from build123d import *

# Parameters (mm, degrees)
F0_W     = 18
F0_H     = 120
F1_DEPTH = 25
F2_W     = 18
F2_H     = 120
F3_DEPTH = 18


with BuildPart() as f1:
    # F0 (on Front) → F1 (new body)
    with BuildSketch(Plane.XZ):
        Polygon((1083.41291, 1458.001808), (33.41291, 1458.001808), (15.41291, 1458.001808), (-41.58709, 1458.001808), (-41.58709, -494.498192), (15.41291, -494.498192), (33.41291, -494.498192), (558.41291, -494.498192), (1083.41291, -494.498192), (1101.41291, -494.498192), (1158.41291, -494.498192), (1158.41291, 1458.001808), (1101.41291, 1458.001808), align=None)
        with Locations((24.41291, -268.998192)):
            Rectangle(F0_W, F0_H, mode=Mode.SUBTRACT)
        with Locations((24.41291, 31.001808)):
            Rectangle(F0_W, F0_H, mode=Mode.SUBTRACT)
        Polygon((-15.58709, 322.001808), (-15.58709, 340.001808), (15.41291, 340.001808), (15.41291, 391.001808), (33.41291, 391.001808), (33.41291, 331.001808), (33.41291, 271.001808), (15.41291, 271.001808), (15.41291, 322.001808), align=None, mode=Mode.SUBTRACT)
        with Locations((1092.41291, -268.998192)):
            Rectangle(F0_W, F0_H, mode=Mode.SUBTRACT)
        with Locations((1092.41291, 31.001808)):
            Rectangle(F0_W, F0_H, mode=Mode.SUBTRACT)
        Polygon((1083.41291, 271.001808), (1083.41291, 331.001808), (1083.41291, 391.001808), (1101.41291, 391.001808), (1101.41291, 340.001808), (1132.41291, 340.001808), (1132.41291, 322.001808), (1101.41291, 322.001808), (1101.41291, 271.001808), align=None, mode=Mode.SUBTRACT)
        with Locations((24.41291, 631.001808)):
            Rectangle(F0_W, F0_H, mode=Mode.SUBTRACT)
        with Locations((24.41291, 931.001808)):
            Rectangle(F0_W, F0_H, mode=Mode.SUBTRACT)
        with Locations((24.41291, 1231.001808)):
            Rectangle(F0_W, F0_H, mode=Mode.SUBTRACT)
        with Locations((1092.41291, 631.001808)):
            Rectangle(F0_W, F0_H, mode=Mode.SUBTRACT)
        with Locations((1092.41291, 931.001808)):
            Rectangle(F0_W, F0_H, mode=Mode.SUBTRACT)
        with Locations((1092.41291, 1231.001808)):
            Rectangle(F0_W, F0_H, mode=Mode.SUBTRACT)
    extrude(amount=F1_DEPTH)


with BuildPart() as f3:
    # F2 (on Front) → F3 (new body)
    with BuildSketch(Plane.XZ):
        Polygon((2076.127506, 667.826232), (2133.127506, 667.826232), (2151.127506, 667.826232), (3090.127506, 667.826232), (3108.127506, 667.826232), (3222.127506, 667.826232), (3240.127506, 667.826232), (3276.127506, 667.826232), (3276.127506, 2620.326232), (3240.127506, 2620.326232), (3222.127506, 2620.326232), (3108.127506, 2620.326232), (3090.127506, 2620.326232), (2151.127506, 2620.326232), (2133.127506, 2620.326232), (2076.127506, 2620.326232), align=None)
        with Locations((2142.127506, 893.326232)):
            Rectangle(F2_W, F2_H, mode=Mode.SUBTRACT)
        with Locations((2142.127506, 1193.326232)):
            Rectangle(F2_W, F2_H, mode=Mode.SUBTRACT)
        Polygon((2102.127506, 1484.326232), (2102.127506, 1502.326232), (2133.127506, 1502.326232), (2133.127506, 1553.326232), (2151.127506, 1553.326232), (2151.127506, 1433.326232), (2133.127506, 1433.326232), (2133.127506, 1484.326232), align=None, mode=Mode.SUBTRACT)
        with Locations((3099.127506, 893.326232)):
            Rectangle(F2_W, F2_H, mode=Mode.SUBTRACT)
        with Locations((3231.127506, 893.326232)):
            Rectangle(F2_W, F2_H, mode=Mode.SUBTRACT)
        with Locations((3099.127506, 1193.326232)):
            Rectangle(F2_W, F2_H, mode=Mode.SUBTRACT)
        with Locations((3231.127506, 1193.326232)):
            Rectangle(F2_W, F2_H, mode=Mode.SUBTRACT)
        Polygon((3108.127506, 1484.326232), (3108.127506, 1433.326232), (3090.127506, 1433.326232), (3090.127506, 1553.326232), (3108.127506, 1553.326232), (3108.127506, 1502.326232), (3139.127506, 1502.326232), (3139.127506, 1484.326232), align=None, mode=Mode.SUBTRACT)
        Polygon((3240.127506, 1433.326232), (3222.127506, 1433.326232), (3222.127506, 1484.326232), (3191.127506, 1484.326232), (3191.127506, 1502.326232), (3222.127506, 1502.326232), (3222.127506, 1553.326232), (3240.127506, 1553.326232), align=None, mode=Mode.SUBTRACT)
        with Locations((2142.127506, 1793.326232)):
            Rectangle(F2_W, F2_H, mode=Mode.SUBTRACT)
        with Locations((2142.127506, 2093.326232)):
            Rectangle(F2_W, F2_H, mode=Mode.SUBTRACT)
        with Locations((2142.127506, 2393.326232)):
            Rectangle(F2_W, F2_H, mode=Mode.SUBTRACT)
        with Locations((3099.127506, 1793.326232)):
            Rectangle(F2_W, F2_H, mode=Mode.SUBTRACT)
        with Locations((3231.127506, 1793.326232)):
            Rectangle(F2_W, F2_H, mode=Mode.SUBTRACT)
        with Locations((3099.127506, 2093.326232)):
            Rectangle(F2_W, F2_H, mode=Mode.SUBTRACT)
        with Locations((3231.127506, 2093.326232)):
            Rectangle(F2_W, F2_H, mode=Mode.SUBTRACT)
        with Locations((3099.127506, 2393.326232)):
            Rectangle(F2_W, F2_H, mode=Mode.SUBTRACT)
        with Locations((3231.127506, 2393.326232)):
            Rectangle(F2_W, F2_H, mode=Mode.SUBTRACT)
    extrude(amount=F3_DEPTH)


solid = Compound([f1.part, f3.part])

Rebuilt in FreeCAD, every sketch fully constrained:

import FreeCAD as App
import Part
import Sketcher
from FreeCAD import Vector
Q = App.Units.Quantity


def add_polygon(sketch, points):
    """Adds a closed chain of lines whose ends are joined by coincident constraints."""
    first, n = sketch.GeometryCount, len(points)
    for a, b in zip(points, points[1:] + points[:1]):
        sketch.addGeometry(Part.LineSegment(App.Vector(*a, 0), App.Vector(*b, 0)), False)
    for i in range(n):
        sketch.addConstraint(Sketcher.Constraint("Coincident", first + i, 2, first + (i + 1) % n, 1))

doc = App.newDocument("Part")
params = doc.addObject("Spreadsheet::Sheet", "Params")
for row, (alias, value) in enumerate([
    ("sketch1_width", "1200 mm"),
    ("sketch1_width2", "18 mm"),
    ("sketch1_width3", "31 mm"),
    ("sketch1_height", "120 mm"),
    ("sketch1_height2", "1952.5 mm"),
    ("pad1_length", "25 mm"),
    ("sketch2_width", "1200 mm"),
    ("sketch2_width2", "18 mm"),
    ("sketch2_width3", "31 mm"),
    ("sketch2_height", "120 mm"),
    ("sketch2_height2", "1952.5 mm"),
    ("pad2_length", "18 mm"),
], start=1):
    params.set(f"A{row}", alias)
    params.set(f"B{row}", "=" + value)
    params.setAlias(f"B{row}", alias)

body = doc.addObject("PartDesign::Body", "Body")

# Sketch on XZ plane
sketch1 = body.newObject("Sketcher::SketchObject", "Sketch")
sketch1.AttachmentSupport = (doc.getObject("XZ_Plane"), [""])
sketch1.MapMode = "FlatFace"
add_polygon(sketch1, [(-42, 1458), (-42, -494), (1158, -494), (1158, 1458)])  # lines 0-3
add_polygon(sketch1, [(33, -329), (15, -329), (15, -209), (33, -209)])  # lines 4-7
add_polygon(sketch1, [(33, -29), (15, -29), (15, 91), (33, 91)])  # lines 8-11
add_polygon(sketch1, [(15, 322), (-16, 322), (-16, 340), (15, 340), (15, 391), (33, 391), (33, 271), (15, 271)])  # lines 12-19
add_polygon(sketch1, [(1101, -329), (1083, -329), (1083, -209), (1101, -209)])  # lines 20-23
add_polygon(sketch1, [(1101, -29), (1083, -29), (1083, 91), (1101, 91)])  # lines 24-27
add_polygon(sketch1, [(1101, 271), (1083, 271), (1083, 391), (1101, 391), (1101, 340), (1132, 340), (1132, 322), (1101, 322)])  # lines 28-35
add_polygon(sketch1, [(33, 571), (15, 571), (15, 691), (33, 691)])  # lines 36-39
add_polygon(sketch1, [(33, 871), (15, 871), (15, 991), (33, 991)])  # lines 40-43
add_polygon(sketch1, [(33, 1171), (15, 1171), (15, 1291), (33, 1291)])  # lines 44-47
add_polygon(sketch1, [(1101, 571), (1083, 571), (1083, 691), (1101, 691)])  # lines 48-51
add_polygon(sketch1, [(1101, 871), (1083, 871), (1083, 991), (1101, 991)])  # lines 52-55
add_polygon(sketch1, [(1101, 1171), (1083, 1171), (1083, 1291), (1101, 1291)])  # lines 56-59
sketch1.addConstraint([
    Sketcher.Constraint("Vertical", 0),
    Sketcher.Constraint("Horizontal", 1),
    Sketcher.Constraint("Vertical", 2),
    Sketcher.Constraint("Horizontal", 3),
    Sketcher.Constraint("Horizontal", 4),
    Sketcher.Constraint("Vertical", 5),
    Sketcher.Constraint("Horizontal", 6),
    Sketcher.Constraint("Vertical", 7),
    Sketcher.Constraint("Horizontal", 8),
    Sketcher.Constraint("Vertical", 9),
    Sketcher.Constraint("Horizontal", 10),
    Sketcher.Constraint("Vertical", 11),
    Sketcher.Constraint("Horizontal", 12),
    Sketcher.Constraint("Vertical", 13),
    Sketcher.Constraint("Horizontal", 14),
    Sketcher.Constraint("Vertical", 15),
    Sketcher.Constraint("Horizontal", 16),
    Sketcher.Constraint("Vertical", 17),
    Sketcher.Constraint("Horizontal", 18),
    Sketcher.Constraint("Vertical", 19),
    Sketcher.Constraint("Horizontal", 20),
    Sketcher.Constraint("Vertical", 21),
    Sketcher.Constraint("Horizontal", 22),
    Sketcher.Constraint("Vertical", 23),
    Sketcher.Constraint("Horizontal", 24),
    Sketcher.Constraint("Vertical", 25),
    Sketcher.Constraint("Horizontal", 26),
    Sketcher.Constraint("Vertical", 27),
    Sketcher.Constraint("Horizontal", 28),
    Sketcher.Constraint("Vertical", 29),
    Sketcher.Constraint("Horizontal", 30),
    Sketcher.Constraint("Vertical", 31),
    Sketcher.Constraint("Horizontal", 32),
    Sketcher.Constraint("Vertical", 33),
    Sketcher.Constraint("Horizontal", 34),
    Sketcher.Constraint("Vertical", 35),
    Sketcher.Constraint("Horizontal", 36),
    Sketcher.Constraint("Vertical", 37),
    Sketcher.Constraint("Horizontal", 38),
    Sketcher.Constraint("Vertical", 39),
    Sketcher.Constraint("Horizontal", 40),
    Sketcher.Constraint("Vertical", 41),
    Sketcher.Constraint("Horizontal", 42),
    Sketcher.Constraint("Vertical", 43),
    Sketcher.Constraint("Horizontal", 44),
    Sketcher.Constraint("Vertical", 45),
    Sketcher.Constraint("Horizontal", 46),
    Sketcher.Constraint("Vertical", 47),
    Sketcher.Constraint("Horizontal", 48),
    Sketcher.Constraint("Vertical", 49),
    Sketcher.Constraint("Horizontal", 50),
    Sketcher.Constraint("Vertical", 51),
    Sketcher.Constraint("Horizontal", 52),
    Sketcher.Constraint("Vertical", 53),
    Sketcher.Constraint("Horizontal", 54),
    Sketcher.Constraint("Vertical", 55),
    Sketcher.Constraint("Horizontal", 56),
    Sketcher.Constraint("Vertical", 57),
    Sketcher.Constraint("Horizontal", 58),
    Sketcher.Constraint("Vertical", 59),
    Sketcher.Constraint("Horizontal", 7, 2, 20, 2),
    Sketcher.Constraint("Horizontal", 6, 2, 21, 2),
    Sketcher.Constraint("Horizontal", 11, 2, 24, 2),
    Sketcher.Constraint("Horizontal", 10, 2, 25, 2),
    Sketcher.Constraint("Horizontal", 18, 2, 28, 2),
    Sketcher.Constraint("Horizontal", 16, 2, 29, 2),
    Sketcher.Constraint("Horizontal", 14, 2, 31, 2),
    Sketcher.Constraint("Horizontal", 19, 2, 33, 2),
    Sketcher.Constraint("Horizontal", 39, 2, 48, 2),
    Sketcher.Constraint("Horizontal", 38, 2, 49, 2),
    Sketcher.Constraint("Horizontal", 43, 2, 52, 2),
    Sketcher.Constraint("Horizontal", 42, 2, 53, 2),
    Sketcher.Constraint("Horizontal", 47, 2, 56, 2),
    Sketcher.Constraint("Horizontal", 46, 2, 57, 2),
    Sketcher.Constraint("Vertical", 5, 2, 8, 2),
    Sketcher.Constraint("Vertical", 7, 2, 10, 2),
    Sketcher.Constraint("Vertical", 9, 2, 14, 2),
    Sketcher.Constraint("Vertical", 11, 2, 16, 2),
    Sketcher.Constraint("Vertical", 15, 2, 18, 2),
    Sketcher.Constraint("Vertical", 21, 2, 24, 2),
    Sketcher.Constraint("Vertical", 23, 2, 26, 2),
    Sketcher.Constraint("Vertical", 25, 2, 28, 2),
    Sketcher.Constraint("Vertical", 27, 2, 30, 2),
    Sketcher.Constraint("Vertical", 31, 2, 34, 2),
    Sketcher.Constraint("Vertical", 19, 2, 36, 2),
    Sketcher.Constraint("Vertical", 17, 2, 38, 2),
    Sketcher.Constraint("Vertical", 37, 2, 40, 2),
    Sketcher.Constraint("Vertical", 39, 2, 42, 2),
    Sketcher.Constraint("Vertical", 41, 2, 44, 2),
    Sketcher.Constraint("Vertical", 43, 2, 46, 2),
    Sketcher.Constraint("Vertical", 29, 2, 48, 2),
    Sketcher.Constraint("Vertical", 35, 2, 50, 2),
    Sketcher.Constraint("Vertical", 49, 2, 52, 2),
    Sketcher.Constraint("Vertical", 51, 2, 54, 2),
    Sketcher.Constraint("Vertical", 53, 2, 56, 2),
    Sketcher.Constraint("Vertical", 55, 2, 58, 2),
    Sketcher.Constraint("Equal", 18, 20),
    Sketcher.Constraint("Equal", 14, 32),
    Sketcher.Constraint("Equal", 7, 9),
    Sketcher.Constraint("Equal", 58, 13),
    Sketcher.Constraint("Equal", 11, 17),
    Sketcher.Constraint("Equal", 15, 19),
    Sketcher.Constraint("Equal", 29, 37),
    Sketcher.Constraint("Equal", 39, 41),
    Sketcher.Constraint("Equal", 43, 45),
    Sketcher.Constraint("DistanceX", 1, 1, 1, 2, Q("1200 mm")),
    Sketcher.Constraint("DistanceX", 4, 2, 4, 1, Q("18 mm")),
    Sketcher.Constraint("DistanceX", 12, 2, 12, 1, Q("31 mm")),
    Sketcher.Constraint("DistanceY", 5, 1, 5, 2, Q("120 mm")),
    Sketcher.Constraint("DistanceY", 0, 2, 0, 1, Q("1952.5 mm")),
    Sketcher.Constraint("DistanceX", 0, 2, 4, 2, Q("57 mm")),
    Sketcher.Constraint("DistanceY", 4, 2, 3, 2, Q("1787 mm")),
    Sketcher.Constraint("DistanceY", 5, 2, 8, 2, Q("180 mm")),
    Sketcher.Constraint("DistanceY", 9, 2, 12, 2, Q("231 mm")),
    Sketcher.Constraint("DistanceX", 20, 2, 1, 2, Q("75 mm")),
    Sketcher.Constraint("DistanceY", 15, 2, 36, 2, Q("180 mm")),
    Sketcher.Constraint("DistanceY", 37, 2, 40, 2, Q("180 mm")),
    Sketcher.Constraint("DistanceY", 41, 2, 44, 2, Q("180 mm")),
    Sketcher.Constraint("DistanceX", 0, 2, -1, 1, Q("41.58709 mm")),
    Sketcher.Constraint("DistanceY", 0, 2, -1, 1, Q("494.498192 mm")),
])
sketch1.setExpression("Constraints[165]", "Params.sketch1_width")
sketch1.setExpression("Constraints[166]", "Params.sketch1_width2")
sketch1.setExpression("Constraints[167]", "Params.sketch1_width3")
sketch1.setExpression("Constraints[168]", "Params.sketch1_height")
sketch1.setExpression("Constraints[169]", "Params.sketch1_height2")
pad1 = body.newObject("PartDesign::Pad", "Pad")
pad1.Profile = sketch1
pad1.setExpression("Length", "Params.pad1_length")
body2 = doc.addObject("PartDesign::Body", "Body001")

# Sketch on XZ plane
sketch2 = body2.newObject("Sketcher::SketchObject", "Sketch001")
sketch2.AttachmentSupport = (doc.getObject("XZ_Plane001"), [""])
sketch2.MapMode = "FlatFace"
add_polygon(sketch2, [(2076, 668), (3276, 668), (3276, 2620), (2076, 2620)])  # lines 0-3
add_polygon(sketch2, [(2151, 833), (2133, 833), (2133, 953), (2151, 953)])  # lines 4-7
add_polygon(sketch2, [(2151, 1133), (2133, 1133), (2133, 1253), (2151, 1253)])  # lines 8-11
add_polygon(sketch2, [(2133, 1484), (2102, 1484), (2102, 1502), (2133, 1502), (2133, 1553), (2151, 1553), (2151, 1433), (2133, 1433)])  # lines 12-19
add_polygon(sketch2, [(3108, 833), (3090, 833), (3090, 953), (3108, 953)])  # lines 20-23
add_polygon(sketch2, [(3240, 833), (3222, 833), (3222, 953), (3240, 953)])  # lines 24-27
add_polygon(sketch2, [(3108, 1133), (3090, 1133), (3090, 1253), (3108, 1253)])  # lines 28-31
add_polygon(sketch2, [(3240, 1133), (3222, 1133), (3222, 1253), (3240, 1253)])  # lines 32-35
add_polygon(sketch2, [(3139, 1484), (3108, 1484), (3108, 1433), (3090, 1433), (3090, 1553), (3108, 1553), (3108, 1502), (3139, 1502)])  # lines 36-43
add_polygon(sketch2, [(3240, 1553), (3240, 1433), (3222, 1433), (3222, 1484), (3191, 1484), (3191, 1502), (3222, 1502), (3222, 1553)])  # lines 44-51
add_polygon(sketch2, [(2151, 1733), (2133, 1733), (2133, 1853), (2151, 1853)])  # lines 52-55
add_polygon(sketch2, [(2151, 2033), (2133, 2033), (2133, 2153), (2151, 2153)])  # lines 56-59
add_polygon(sketch2, [(2151, 2333), (2133, 2333), (2133, 2453), (2151, 2453)])  # lines 60-63
add_polygon(sketch2, [(3108, 1733), (3090, 1733), (3090, 1853), (3108, 1853)])  # lines 64-67
add_polygon(sketch2, [(3240, 1733), (3222, 1733), (3222, 1853), (3240, 1853)])  # lines 68-71
add_polygon(sketch2, [(3108, 2033), (3090, 2033), (3090, 2153), (3108, 2153)])  # lines 72-75
add_polygon(sketch2, [(3240, 2033), (3222, 2033), (3222, 2153), (3240, 2153)])  # lines 76-79
add_polygon(sketch2, [(3108, 2333), (3090, 2333), (3090, 2453), (3108, 2453)])  # lines 80-83
add_polygon(sketch2, [(3240, 2333), (3222, 2333), (3222, 2453), (3240, 2453)])  # lines 84-87
sketch2.addConstraint([
    Sketcher.Constraint("Horizontal", 0),
    Sketcher.Constraint("Vertical", 1),
    Sketcher.Constraint("Horizontal", 2),
    Sketcher.Constraint("Vertical", 3),
    Sketcher.Constraint("Horizontal", 4),
    Sketcher.Constraint("Vertical", 5),
    Sketcher.Constraint("Horizontal", 6),
    Sketcher.Constraint("Vertical", 7),
    Sketcher.Constraint("Horizontal", 8),
    Sketcher.Constraint("Vertical", 9),
    Sketcher.Constraint("Horizontal", 10),
    Sketcher.Constraint("Vertical", 11),
    Sketcher.Constraint("Horizontal", 12),
    Sketcher.Constraint("Vertical", 13),
    Sketcher.Constraint("Horizontal", 14),
    Sketcher.Constraint("Vertical", 15),
    Sketcher.Constraint("Horizontal", 16),
    Sketcher.Constraint("Vertical", 17),
    Sketcher.Constraint("Horizontal", 18),
    Sketcher.Constraint("Vertical", 19),
    Sketcher.Constraint("Horizontal", 20),
    Sketcher.Constraint("Vertical", 21),
    Sketcher.Constraint("Horizontal", 22),
    Sketcher.Constraint("Vertical", 23),
    Sketcher.Constraint("Horizontal", 24),
    Sketcher.Constraint("Vertical", 25),
    Sketcher.Constraint("Horizontal", 26),
    Sketcher.Constraint("Vertical", 27),
    Sketcher.Constraint("Horizontal", 28),
    Sketcher.Constraint("Vertical", 29),
    Sketcher.Constraint("Horizontal", 30),
    Sketcher.Constraint("Vertical", 31),
    Sketcher.Constraint("Horizontal", 32),
    Sketcher.Constraint("Vertical", 33),
    Sketcher.Constraint("Horizontal", 34),
    Sketcher.Constraint("Vertical", 35),
    Sketcher.Constraint("Horizontal", 36),
    Sketcher.Constraint("Vertical", 37),
    Sketcher.Constraint("Horizontal", 38),
    Sketcher.Constraint("Vertical", 39),
    Sketcher.Constraint("Horizontal", 40),
    Sketcher.Constraint("Vertical", 41),
    Sketcher.Constraint("Horizontal", 42),
    Sketcher.Constraint("Vertical", 43),
    Sketcher.Constraint("Vertical", 44),
    Sketcher.Constraint("Horizontal", 45),
    Sketcher.Constraint("Vertical", 46),
    Sketcher.Constraint("Horizontal", 47),
    Sketcher.Constraint("Vertical", 48),
    Sketcher.Constraint("Horizontal", 49),
    Sketcher.Constraint("Vertical", 50),
    Sketcher.Constraint("Horizontal", 51),
    Sketcher.Constraint("Horizontal", 52),
    Sketcher.Constraint("Vertical", 53),
    Sketcher.Constraint("Horizontal", 54),
    Sketcher.Constraint("Vertical", 55),
    Sketcher.Constraint("Horizontal", 56),
    Sketcher.Constraint("Vertical", 57),
    Sketcher.Constraint("Horizontal", 58),
    Sketcher.Constraint("Vertical", 59),
    Sketcher.Constraint("Horizontal", 60),
    Sketcher.Constraint("Vertical", 61),
    Sketcher.Constraint("Horizontal", 62),
    Sketcher.Constraint("Vertical", 63),
    Sketcher.Constraint("Horizontal", 64),
    Sketcher.Constraint("Vertical", 65),
    Sketcher.Constraint("Horizontal", 66),
    Sketcher.Constraint("Vertical", 67),
    Sketcher.Constraint("Horizontal", 68),
    Sketcher.Constraint("Vertical", 69),
    Sketcher.Constraint("Horizontal", 70),
    Sketcher.Constraint("Vertical", 71),
    Sketcher.Constraint("Horizontal", 72),
    Sketcher.Constraint("Vertical", 73),
    Sketcher.Constraint("Horizontal", 74),
    Sketcher.Constraint("Vertical", 75),
    Sketcher.Constraint("Horizontal", 76),
    Sketcher.Constraint("Vertical", 77),
    Sketcher.Constraint("Horizontal", 78),
    Sketcher.Constraint("Vertical", 79),
    Sketcher.Constraint("Horizontal", 80),
    Sketcher.Constraint("Vertical", 81),
    Sketcher.Constraint("Horizontal", 82),
    Sketcher.Constraint("Vertical", 83),
    Sketcher.Constraint("Horizontal", 84),
    Sketcher.Constraint("Vertical", 85),
    Sketcher.Constraint("Horizontal", 86),
    Sketcher.Constraint("Vertical", 87),
    Sketcher.Constraint("Horizontal", 7, 2, 20, 2),
    Sketcher.Constraint("Horizontal", 6, 2, 21, 2),
    Sketcher.Constraint("Horizontal", 23, 2, 24, 2),
    Sketcher.Constraint("Horizontal", 22, 2, 25, 2),
    Sketcher.Constraint("Horizontal", 11, 2, 28, 2),
    Sketcher.Constraint("Horizontal", 10, 2, 29, 2),
    Sketcher.Constraint("Horizontal", 31, 2, 32, 2),
    Sketcher.Constraint("Horizontal", 30, 2, 33, 2),
    Sketcher.Constraint("Horizontal", 19, 2, 36, 2),
    Sketcher.Constraint("Horizontal", 18, 2, 37, 2),
    Sketcher.Constraint("Horizontal", 16, 2, 39, 2),
    Sketcher.Constraint("Horizontal", 14, 2, 41, 2),
    Sketcher.Constraint("Horizontal", 38, 2, 44, 2),
    Sketcher.Constraint("Horizontal", 43, 2, 46, 2),
    Sketcher.Constraint("Horizontal", 42, 2, 48, 2),
    Sketcher.Constraint("Horizontal", 40, 2, 50, 2),
    Sketcher.Constraint("Horizontal", 55, 2, 64, 2),
    Sketcher.Constraint("Horizontal", 54, 2, 65, 2),
    Sketcher.Constraint("Horizontal", 67, 2, 68, 2),
    Sketcher.Constraint("Horizontal", 66, 2, 69, 2),
    Sketcher.Constraint("Horizontal", 59, 2, 72, 2),
    Sketcher.Constraint("Horizontal", 58, 2, 73, 2),
    Sketcher.Constraint("Horizontal", 75, 2, 76, 2),
    Sketcher.Constraint("Horizontal", 74, 2, 77, 2),
    Sketcher.Constraint("Horizontal", 63, 2, 80, 2),
    Sketcher.Constraint("Horizontal", 62, 2, 81, 2),
    Sketcher.Constraint("Horizontal", 83, 2, 84, 2),
    Sketcher.Constraint("Horizontal", 82, 2, 85, 2),
    Sketcher.Constraint("Vertical", 5, 2, 8, 2),
    Sketcher.Constraint("Vertical", 7, 2, 10, 2),
    Sketcher.Constraint("Vertical", 9, 2, 14, 2),
    Sketcher.Constraint("Vertical", 11, 2, 16, 2),
    Sketcher.Constraint("Vertical", 15, 2, 18, 2),
    Sketcher.Constraint("Vertical", 21, 2, 28, 2),
    Sketcher.Constraint("Vertical", 23, 2, 30, 2),
    Sketcher.Constraint("Vertical", 25, 2, 32, 2),
    Sketcher.Constraint("Vertical", 27, 2, 34, 2),
    Sketcher.Constraint("Vertical", 31, 2, 36, 2),
    Sketcher.Constraint("Vertical", 29, 2, 38, 2),
    Sketcher.Constraint("Vertical", 37, 2, 40, 2),
    Sketcher.Constraint("Vertical", 35, 2, 44, 2),
    Sketcher.Constraint("Vertical", 33, 2, 45, 2),
    Sketcher.Constraint("Vertical", 46, 2, 49, 2),
    Sketcher.Constraint("Vertical", 19, 2, 52, 2),
    Sketcher.Constraint("Vertical", 17, 2, 54, 2),
    Sketcher.Constraint("Vertical", 53, 2, 56, 2),
    Sketcher.Constraint("Vertical", 55, 2, 58, 2),
    Sketcher.Constraint("Vertical", 57, 2, 60, 2),
    Sketcher.Constraint("Vertical", 59, 2, 62, 2),
    Sketcher.Constraint("Vertical", 39, 2, 64, 2),
    Sketcher.Constraint("Vertical", 41, 2, 66, 2),
    Sketcher.Constraint("Vertical", 50, 2, 68, 2),
    Sketcher.Constraint("Vertical", 51, 2, 70, 2),
    Sketcher.Constraint("Vertical", 65, 2, 72, 2),
    Sketcher.Constraint("Vertical", 67, 2, 74, 2),
    Sketcher.Constraint("Vertical", 69, 2, 76, 2),
    Sketcher.Constraint("Vertical", 71, 2, 78, 2),
    Sketcher.Constraint("Vertical", 73, 2, 80, 2),
    Sketcher.Constraint("Vertical", 75, 2, 82, 2),
    Sketcher.Constraint("Vertical", 77, 2, 84, 2),
    Sketcher.Constraint("Vertical", 79, 2, 86, 2),
    Sketcher.Constraint("Equal", 18, 20),
    Sketcher.Constraint("Equal", 22, 24),
    Sketcher.Constraint("Equal", 14, 36),
    Sketcher.Constraint("Equal", 42, 47),
    Sketcher.Constraint("Equal", 7, 9),
    Sketcher.Constraint("Equal", 86, 13),
    Sketcher.Constraint("Equal", 11, 17),
    Sketcher.Constraint("Equal", 15, 19),
    Sketcher.Constraint("Equal", 44, 53),
    Sketcher.Constraint("Equal", 55, 57),
    Sketcher.Constraint("Equal", 59, 61),
    Sketcher.Constraint("DistanceX", 0, 1, 0, 2, Q("1200 mm")),
    Sketcher.Constraint("DistanceX", 4, 2, 4, 1, Q("18 mm")),
    Sketcher.Constraint("DistanceX", 12, 2, 12, 1, Q("31 mm")),
    Sketcher.Constraint("DistanceY", 5, 1, 5, 2, Q("120 mm")),
    Sketcher.Constraint("DistanceY", 1, 1, 1, 2, Q("1952.5 mm")),
    Sketcher.Constraint("DistanceY", -1, 1, 0, 2, Q("667.826232 mm")),
    Sketcher.Constraint("DistanceY", -1, 1, 4, 2, Q("833.326232 mm")),
    Sketcher.Constraint("DistanceY", -1, 1, 8, 2, Q("1133.326232 mm")),
    Sketcher.Constraint("DistanceY", -1, 1, 12, 2, Q("1484.326232 mm")),
    Sketcher.Constraint("DistanceY", -1, 1, 52, 2, Q("1733.326232 mm")),
    Sketcher.Constraint("DistanceY", -1, 1, 56, 2, Q("2033.326232 mm")),
    Sketcher.Constraint("DistanceY", -1, 1, 60, 2, Q("2333.326232 mm")),
    Sketcher.Constraint("DistanceX", -1, 1, 0, 2, Q("3276.127506 mm")),
    Sketcher.Constraint("DistanceX", -1, 1, 4, 2, Q("2133.127506 mm")),
    Sketcher.Constraint("DistanceX", -1, 1, 20, 2, Q("3090.127506 mm")),
    Sketcher.Constraint("DistanceX", -1, 1, 24, 2, Q("3222.127506 mm")),
])
sketch2.setExpression("Constraints[248]", "Params.sketch2_width")
sketch2.setExpression("Constraints[249]", "Params.sketch2_width2")
sketch2.setExpression("Constraints[250]", "Params.sketch2_width3")
sketch2.setExpression("Constraints[251]", "Params.sketch2_height")
sketch2.setExpression("Constraints[252]", "Params.sketch2_height2")
pad2 = body2.newObject("PartDesign::Pad", "Pad001")
pad2.Profile = sketch2
pad2.setExpression("Length", "Params.pad2_length")

doc.recompute()
